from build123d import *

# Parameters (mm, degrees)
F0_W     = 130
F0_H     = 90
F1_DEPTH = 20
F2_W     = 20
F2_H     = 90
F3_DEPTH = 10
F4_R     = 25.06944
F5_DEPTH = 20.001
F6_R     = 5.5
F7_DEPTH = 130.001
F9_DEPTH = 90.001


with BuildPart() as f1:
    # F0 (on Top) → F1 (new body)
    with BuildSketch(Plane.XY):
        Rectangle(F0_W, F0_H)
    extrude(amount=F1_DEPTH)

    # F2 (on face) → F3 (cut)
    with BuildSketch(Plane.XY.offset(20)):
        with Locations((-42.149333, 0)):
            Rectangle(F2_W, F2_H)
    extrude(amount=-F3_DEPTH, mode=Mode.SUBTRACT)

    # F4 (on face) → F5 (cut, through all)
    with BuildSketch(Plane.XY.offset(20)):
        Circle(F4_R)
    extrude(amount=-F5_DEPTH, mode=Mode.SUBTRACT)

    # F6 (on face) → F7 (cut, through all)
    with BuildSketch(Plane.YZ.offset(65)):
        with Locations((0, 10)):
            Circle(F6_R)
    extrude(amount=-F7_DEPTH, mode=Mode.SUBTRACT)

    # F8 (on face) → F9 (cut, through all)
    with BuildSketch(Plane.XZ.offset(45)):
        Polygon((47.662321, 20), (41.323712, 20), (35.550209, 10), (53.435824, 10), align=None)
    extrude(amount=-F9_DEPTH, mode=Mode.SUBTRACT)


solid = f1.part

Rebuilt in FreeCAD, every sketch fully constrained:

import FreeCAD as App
import Part
import Sketcher
from FreeCAD import Vector
Q = App.Units.Quantity

doc = App.newDocument("Part")
body = doc.addObject("PartDesign::Body", "Body")

# Sketch on XY plane
sketch1 = body.newObject("Sketcher::SketchObject", "Sketch")
sketch1.AttachmentSupport = (doc.getObject("XY_Plane"), [""])
sketch1.MapMode = "FlatFace"
sketch1.addGeometry(Part.LineSegment(Vector(-65, 45, 0), Vector(-65, -45, 0)), False)
sketch1.addGeometry(Part.LineSegment(Vector(-65, -45, 0), Vector(65, -45, 0)), False)
sketch1.addGeometry(Part.LineSegment(Vector(65, -45, 0), Vector(65, 45, 0)), False)
sketch1.addGeometry(Part.LineSegment(Vector(65, 45, 0), Vector(-65, 45, 0)), False)
sketch1.addConstraint(Sketcher.Constraint("Coincident", 0, 2, 1, 1))
sketch1.addConstraint(Sketcher.Constraint("Coincident", 1, 2, 2, 1))
sketch1.addConstraint(Sketcher.Constraint("Coincident", 2, 2, 3, 1))
sketch1.addConstraint(Sketcher.Constraint("Coincident", 3, 2, 0, 1))
sketch1.addConstraint(Sketcher.Constraint("Vertical", 0))
sketch1.addConstraint(Sketcher.Constraint("Horizontal", 1))
sketch1.addConstraint(Sketcher.Constraint("Vertical", 2))
sketch1.addConstraint(Sketcher.Constraint("Horizontal", 3))
sketch1.addConstraint(Sketcher.Constraint("Symmetric", 0, 2, 2, 2, -1, 1))
sketch1.addConstraint(Sketcher.Constraint("DistanceX", 1, 1, 1, 2, Q("130 mm")))
sketch1.addConstraint(Sketcher.Constraint("DistanceY", 0, 2, 0, 1, Q("90 mm")))
pad1 = body.newObject("PartDesign::Pad", "Pad")
pad1.Profile = sketch1
pad1.Length = 20

# Sketch on XY plane
sketch2 = body.newObject("Sketcher::SketchObject", "Sketch001")
sketch2.AttachmentSupport = (doc.getObject("XY_Plane"), [""])
sketch2.MapMode = "FlatFace"
sketch2.AttachmentOffset = App.Placement(Vector(0, 0, 20), App.Rotation())
sketch2.addGeometry(Part.LineSegment(Vector(-52.149333, 45, 0), Vector(-52.149333, -45, 0)), False)
sketch2.addGeometry(Part.LineSegment(Vector(-52.149333, -45, 0), Vector(-32.149333, -45, 0)), False)
sketch2.addGeometry(Part.LineSegment(Vector(-32.149333, -45, 0), Vector(-32.149333, 45, 0)), False)
sketch2.addGeometry(Part.LineSegment(Vector(-32.149333, 45, 0), Vector(-52.149333, 45, 0)), False)
sketch2.addConstraint(Sketcher.Constraint("Coincident", 0, 2, 1, 1))
sketch2.addConstraint(Sketcher.Constraint("Coincident", 1, 2, 2, 1))
sketch2.addConstraint(Sketcher.Constraint("Coincident", 2, 2, 3, 1))
sketch2.addConstraint(Sketcher.Constraint("Coincident", 3, 2, 0, 1))
sketch2.addConstraint(Sketcher.Constraint("Vertical", 0))
sketch2.addConstraint(Sketcher.Constraint("Horizontal", 1))
sketch2.addConstraint(Sketcher.Constraint("Vertical", 2))
sketch2.addConstraint(Sketcher.Constraint("Horizontal", 3))
sketch2.addConstraint(Sketcher.Constraint("DistanceX", 1, 1, 1, 2, Q("20 mm")))
sketch2.addConstraint(Sketcher.Constraint("DistanceY", 0, 2, 0, 1, Q("90 mm")))
sketch2.addConstraint(Sketcher.Constraint("DistanceY", 0, 2, -1, 1, Q("45 mm")))
sketch2.addConstraint(Sketcher.Constraint("DistanceX", 0, 2, -1, 1, Q("52.149333 mm")))
pocket1 = body.newObject("PartDesign::Pocket", "Pocket")
pocket1.Profile = sketch2
pocket1.Length = 10

# Sketch on XY plane
sketch3 = body.newObject("Sketcher::SketchObject", "Sketch002")
sketch3.AttachmentSupport = (doc.getObject("XY_Plane"), [""])
sketch3.MapMode = "FlatFace"
sketch3.AttachmentOffset = App.Placement(Vector(0, 0, 20), App.Rotation())
sketch3.addGeometry(Part.Circle(Vector(0, 0, 0), Vector(0, 0, 1), 25.06944), False)
sketch3.addConstraint(Sketcher.Constraint("Coincident", 0, 3, -1, 1))
sketch3.addConstraint(Sketcher.Constraint("Diameter", 0, Q("50.13888 mm")))
pocket2 = body.newObject("PartDesign::Pocket", "Pocket001")
pocket2.Profile = sketch3
pocket2.Type = "ThroughAll"

# Sketch on YZ plane
sketch4 = body.newObject("Sketcher::SketchObject", "Sketch003")
sketch4.AttachmentSupport = (doc.getObject("YZ_Plane"), [""])
sketch4.MapMode = "FlatFace"
sketch4.AttachmentOffset = App.Placement(Vector(0, 0, 65), App.Rotation())
sketch4.addGeometry(Part.Circle(Vector(0, 10, 0), Vector(0, 0, 1), 5.5), False)
sketch4.addConstraint(Sketcher.Constraint("PointOnObject", 0, 3, -2))
sketch4.addConstraint(Sketcher.Constraint("Diameter", 0, Q("11 mm")))
sketch4.addConstraint(Sketcher.Constraint("DistanceY", -1, 1, 0, 3, Q("10 mm")))
pocket3 = body.newObject("PartDesign::Pocket", "Pocket002")
pocket3.Profile = sketch4
pocket3.Type = "ThroughAll"

# Sketch on XZ plane
sketch5 = body.newObject("Sketcher::SketchObject", "Sketch004")
sketch5.AttachmentSupport = (doc.getObject("XZ_Plane"), [""])
sketch5.MapMode = "FlatFace"
sketch5.AttachmentOffset = App.Placement(Vector(0, 0, 45), App.Rotation())
sketch5.addGeometry(Part.LineSegment(Vector(47.662321, 20, 0), Vector(41.323712, 20, 0)), False)
sketch5.addGeometry(Part.LineSegment(Vector(41.323712, 20, 0), Vector(35.550209, 10, 0)), False)
sketch5.addGeometry(Part.LineSegment(Vector(35.550209, 10, 0), Vector(53.435824, 10, 0)), False)
sketch5.addGeometry(Part.LineSegment(Vector(53.435824, 10, 0), Vector(47.662321, 20, 0)), False)
sketch5.addConstraint(Sketcher.Constraint("Coincident", 0, 2, 1, 1))
sketch5.addConstraint(Sketcher.Constraint("Coincident", 1, 2, 2, 1))
sketch5.addConstraint(Sketcher.Constraint("Coincident", 2, 2, 3, 1))
sketch5.addConstraint(Sketcher.Constraint("Coincident", 3, 2, 0, 1))
sketch5.addConstraint(Sketcher.Constraint("Horizontal", 0))
sketch5.addConstraint(Sketcher.Constraint("Horizontal", 2))
sketch5.addConstraint(Sketcher.Constraint("Equal", 1, 3))
sketch5.addConstraint(Sketcher.Constraint("Angle", 1, Q("-120.000001 deg")))
sketch5.addConstraint(Sketcher.Constraint("DistanceY", -1, 1, 0, 2, Q("20 mm")))
sketch5.addConstraint(Sketcher.Constraint("DistanceY", -1, 1, 1, 2, Q("10 mm")))
sketch5.addConstraint(Sketcher.Constraint("DistanceX", 0, 2, 0, 1, Q("6.338609 mm")))
sketch5.addConstraint(Sketcher.Constraint("DistanceX", -1, 1, 1, 2, Q("35.550209 mm")))
pocket4 = body.newObject("PartDesign::Pocket", "Pocket003")
pocket4.Profile = sketch5
pocket4.Type = "ThroughAll"

doc.recompute()
